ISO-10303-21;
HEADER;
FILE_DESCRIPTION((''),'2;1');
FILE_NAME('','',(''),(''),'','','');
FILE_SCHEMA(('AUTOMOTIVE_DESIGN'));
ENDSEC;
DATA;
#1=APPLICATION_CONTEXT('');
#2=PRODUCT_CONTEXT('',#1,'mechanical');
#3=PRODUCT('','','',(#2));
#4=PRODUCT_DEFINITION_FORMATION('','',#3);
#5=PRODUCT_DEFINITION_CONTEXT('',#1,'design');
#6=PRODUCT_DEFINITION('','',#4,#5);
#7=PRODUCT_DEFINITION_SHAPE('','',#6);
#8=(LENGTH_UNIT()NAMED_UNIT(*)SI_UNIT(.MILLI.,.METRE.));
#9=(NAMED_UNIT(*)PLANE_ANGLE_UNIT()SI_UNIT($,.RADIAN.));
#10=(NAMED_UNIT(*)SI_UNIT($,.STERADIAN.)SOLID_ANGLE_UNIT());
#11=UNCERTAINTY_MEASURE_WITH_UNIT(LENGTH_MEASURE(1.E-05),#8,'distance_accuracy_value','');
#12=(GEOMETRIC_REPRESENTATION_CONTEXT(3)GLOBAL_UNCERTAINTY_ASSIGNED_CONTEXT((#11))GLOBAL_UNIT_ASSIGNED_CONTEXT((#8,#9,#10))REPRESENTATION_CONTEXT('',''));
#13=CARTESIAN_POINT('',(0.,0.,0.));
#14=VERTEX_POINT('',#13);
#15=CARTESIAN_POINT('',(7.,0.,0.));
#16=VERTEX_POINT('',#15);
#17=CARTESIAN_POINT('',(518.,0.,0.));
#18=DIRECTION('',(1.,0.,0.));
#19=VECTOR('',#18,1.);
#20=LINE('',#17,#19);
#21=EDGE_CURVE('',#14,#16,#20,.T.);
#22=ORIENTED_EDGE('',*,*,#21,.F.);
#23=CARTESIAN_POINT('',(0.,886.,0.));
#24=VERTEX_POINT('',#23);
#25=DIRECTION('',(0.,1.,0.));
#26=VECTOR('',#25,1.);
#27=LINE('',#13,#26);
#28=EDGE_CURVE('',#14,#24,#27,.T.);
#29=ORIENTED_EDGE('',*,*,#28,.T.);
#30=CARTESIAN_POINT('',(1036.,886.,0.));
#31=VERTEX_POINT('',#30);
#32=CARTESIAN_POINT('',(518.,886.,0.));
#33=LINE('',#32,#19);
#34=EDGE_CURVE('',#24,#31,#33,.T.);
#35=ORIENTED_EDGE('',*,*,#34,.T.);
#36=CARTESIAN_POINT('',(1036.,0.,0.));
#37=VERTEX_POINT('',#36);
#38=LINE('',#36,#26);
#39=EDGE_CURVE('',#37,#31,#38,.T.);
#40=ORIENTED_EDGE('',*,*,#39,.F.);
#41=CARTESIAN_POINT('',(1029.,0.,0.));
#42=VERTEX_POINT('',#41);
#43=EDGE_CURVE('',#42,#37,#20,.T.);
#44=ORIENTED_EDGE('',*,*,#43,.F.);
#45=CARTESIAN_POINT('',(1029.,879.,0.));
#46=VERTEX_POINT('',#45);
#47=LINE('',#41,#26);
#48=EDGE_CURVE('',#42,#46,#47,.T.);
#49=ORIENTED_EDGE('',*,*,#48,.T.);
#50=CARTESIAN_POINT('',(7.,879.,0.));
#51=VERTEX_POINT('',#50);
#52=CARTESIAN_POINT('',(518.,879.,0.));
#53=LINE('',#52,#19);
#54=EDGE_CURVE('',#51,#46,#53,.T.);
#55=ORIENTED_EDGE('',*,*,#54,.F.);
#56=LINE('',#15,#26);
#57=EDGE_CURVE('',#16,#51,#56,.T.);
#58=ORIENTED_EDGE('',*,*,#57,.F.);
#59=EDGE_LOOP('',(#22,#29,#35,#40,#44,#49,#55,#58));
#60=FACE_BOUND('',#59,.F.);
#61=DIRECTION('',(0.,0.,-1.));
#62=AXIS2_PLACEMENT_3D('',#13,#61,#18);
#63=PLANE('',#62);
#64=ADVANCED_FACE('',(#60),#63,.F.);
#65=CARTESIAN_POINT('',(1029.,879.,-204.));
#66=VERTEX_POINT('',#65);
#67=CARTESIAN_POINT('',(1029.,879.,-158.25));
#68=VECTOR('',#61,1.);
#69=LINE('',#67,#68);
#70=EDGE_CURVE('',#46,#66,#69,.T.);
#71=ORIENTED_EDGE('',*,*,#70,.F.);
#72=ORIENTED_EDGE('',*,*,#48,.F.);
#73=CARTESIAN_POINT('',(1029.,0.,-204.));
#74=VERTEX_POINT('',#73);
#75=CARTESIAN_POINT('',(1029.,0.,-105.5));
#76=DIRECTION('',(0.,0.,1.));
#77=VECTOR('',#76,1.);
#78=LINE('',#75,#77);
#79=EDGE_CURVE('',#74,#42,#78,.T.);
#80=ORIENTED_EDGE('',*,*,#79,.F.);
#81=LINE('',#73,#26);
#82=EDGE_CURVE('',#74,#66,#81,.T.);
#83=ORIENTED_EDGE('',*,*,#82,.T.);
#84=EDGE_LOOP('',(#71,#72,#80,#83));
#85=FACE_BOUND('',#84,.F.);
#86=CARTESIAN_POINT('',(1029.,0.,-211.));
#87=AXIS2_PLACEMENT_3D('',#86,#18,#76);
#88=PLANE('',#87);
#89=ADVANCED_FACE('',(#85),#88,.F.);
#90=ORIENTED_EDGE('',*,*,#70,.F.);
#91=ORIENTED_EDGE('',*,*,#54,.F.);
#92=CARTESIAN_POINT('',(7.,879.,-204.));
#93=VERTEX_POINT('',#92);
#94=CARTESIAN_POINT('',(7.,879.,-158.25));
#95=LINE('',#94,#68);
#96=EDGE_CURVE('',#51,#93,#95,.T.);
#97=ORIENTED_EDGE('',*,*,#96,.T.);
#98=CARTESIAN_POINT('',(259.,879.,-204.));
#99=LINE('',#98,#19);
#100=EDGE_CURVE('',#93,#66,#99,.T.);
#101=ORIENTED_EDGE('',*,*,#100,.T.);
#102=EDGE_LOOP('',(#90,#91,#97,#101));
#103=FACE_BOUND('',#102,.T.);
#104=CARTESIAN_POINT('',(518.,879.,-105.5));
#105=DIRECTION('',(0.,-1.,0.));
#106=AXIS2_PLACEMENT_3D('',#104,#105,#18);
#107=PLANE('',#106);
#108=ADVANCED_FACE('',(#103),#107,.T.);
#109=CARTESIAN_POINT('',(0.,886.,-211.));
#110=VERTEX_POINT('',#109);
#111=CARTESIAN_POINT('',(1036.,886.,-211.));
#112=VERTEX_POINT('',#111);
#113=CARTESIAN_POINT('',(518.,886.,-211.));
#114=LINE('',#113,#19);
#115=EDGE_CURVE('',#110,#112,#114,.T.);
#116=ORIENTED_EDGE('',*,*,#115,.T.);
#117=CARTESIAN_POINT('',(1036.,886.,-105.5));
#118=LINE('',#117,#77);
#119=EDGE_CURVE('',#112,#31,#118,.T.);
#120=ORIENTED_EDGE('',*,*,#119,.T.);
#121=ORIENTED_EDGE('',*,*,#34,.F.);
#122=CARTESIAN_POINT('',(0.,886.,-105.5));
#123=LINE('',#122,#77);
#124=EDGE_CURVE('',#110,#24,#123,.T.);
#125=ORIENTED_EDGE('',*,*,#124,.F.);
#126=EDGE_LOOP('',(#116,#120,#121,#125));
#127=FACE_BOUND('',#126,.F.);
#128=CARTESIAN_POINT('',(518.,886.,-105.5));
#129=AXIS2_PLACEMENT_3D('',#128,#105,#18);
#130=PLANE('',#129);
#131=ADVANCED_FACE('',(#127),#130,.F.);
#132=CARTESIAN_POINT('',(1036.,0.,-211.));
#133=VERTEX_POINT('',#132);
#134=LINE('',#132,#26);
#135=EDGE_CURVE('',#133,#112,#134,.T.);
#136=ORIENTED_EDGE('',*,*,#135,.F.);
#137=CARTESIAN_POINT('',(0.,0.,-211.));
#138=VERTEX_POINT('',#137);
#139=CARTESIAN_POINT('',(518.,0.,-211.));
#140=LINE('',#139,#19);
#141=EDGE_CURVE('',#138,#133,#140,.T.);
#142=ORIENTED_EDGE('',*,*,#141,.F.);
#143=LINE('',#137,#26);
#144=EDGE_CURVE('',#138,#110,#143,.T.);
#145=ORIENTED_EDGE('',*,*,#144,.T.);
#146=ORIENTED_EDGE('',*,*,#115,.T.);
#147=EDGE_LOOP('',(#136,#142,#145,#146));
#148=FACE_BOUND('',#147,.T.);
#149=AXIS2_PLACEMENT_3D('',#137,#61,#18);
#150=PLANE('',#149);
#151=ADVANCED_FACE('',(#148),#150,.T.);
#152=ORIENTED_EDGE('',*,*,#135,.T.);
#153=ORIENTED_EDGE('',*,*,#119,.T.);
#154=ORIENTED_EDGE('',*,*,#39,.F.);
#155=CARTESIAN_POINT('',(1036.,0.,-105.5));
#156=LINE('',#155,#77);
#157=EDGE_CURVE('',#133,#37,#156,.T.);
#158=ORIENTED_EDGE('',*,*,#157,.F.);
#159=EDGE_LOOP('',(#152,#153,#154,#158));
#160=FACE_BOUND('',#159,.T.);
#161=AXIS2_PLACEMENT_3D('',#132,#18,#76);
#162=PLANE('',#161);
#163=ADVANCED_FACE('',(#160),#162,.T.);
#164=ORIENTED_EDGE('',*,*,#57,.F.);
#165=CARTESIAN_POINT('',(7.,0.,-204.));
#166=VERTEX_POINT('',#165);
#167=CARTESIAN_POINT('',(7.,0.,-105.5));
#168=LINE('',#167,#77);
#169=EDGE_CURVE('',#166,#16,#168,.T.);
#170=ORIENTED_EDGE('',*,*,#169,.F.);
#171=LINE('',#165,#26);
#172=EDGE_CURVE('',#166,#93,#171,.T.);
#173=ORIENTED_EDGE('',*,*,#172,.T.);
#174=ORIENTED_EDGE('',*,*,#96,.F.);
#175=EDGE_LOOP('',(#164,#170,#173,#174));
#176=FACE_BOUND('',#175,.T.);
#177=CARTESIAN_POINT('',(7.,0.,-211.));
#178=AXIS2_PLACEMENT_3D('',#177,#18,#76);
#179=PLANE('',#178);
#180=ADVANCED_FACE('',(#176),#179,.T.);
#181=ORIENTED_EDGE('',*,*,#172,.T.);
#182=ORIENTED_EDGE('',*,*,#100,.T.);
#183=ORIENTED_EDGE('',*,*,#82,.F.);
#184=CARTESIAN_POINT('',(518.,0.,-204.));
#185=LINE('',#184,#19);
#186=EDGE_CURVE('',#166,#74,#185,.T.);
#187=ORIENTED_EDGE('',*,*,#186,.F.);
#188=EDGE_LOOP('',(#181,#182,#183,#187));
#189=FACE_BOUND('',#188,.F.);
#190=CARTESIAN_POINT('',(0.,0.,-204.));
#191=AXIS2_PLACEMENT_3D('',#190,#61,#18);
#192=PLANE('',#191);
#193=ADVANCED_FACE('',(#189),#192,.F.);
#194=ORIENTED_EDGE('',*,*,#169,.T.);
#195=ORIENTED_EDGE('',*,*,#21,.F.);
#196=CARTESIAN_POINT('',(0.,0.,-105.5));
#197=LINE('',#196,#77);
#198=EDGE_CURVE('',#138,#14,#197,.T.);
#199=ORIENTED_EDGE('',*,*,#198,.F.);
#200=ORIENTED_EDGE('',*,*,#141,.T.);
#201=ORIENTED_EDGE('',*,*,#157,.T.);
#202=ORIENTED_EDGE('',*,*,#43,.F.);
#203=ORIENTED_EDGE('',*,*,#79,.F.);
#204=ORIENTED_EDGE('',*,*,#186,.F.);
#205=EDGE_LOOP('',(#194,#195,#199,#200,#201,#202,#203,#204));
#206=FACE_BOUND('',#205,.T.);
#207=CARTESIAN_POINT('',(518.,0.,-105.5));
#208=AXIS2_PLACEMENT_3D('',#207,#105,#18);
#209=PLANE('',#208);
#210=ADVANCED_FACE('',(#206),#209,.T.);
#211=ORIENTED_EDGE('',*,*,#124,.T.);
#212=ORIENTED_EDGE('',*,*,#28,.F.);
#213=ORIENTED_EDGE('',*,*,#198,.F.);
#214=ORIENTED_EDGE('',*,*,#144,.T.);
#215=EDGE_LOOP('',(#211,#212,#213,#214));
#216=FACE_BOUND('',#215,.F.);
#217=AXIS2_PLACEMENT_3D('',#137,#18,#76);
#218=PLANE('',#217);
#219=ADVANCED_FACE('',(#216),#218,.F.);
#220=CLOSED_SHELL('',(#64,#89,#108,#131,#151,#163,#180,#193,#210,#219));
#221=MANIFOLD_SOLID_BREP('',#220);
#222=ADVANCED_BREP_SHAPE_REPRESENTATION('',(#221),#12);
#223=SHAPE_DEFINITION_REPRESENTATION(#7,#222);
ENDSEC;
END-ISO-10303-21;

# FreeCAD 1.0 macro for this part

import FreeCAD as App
import Part
import Sketcher
from FreeCAD import Vector
Q = App.Units.Quantity


def faces_at(feature, points):
    """Names of the faces that lie closest to the given points."""
    faces = feature.Shape.Faces
    near = lambda p: min(range(len(faces)), key=lambda i: faces[i].distToShape(Part.Vertex(*p))[0])
    return sorted({f"Face{near(p) + 1}" for p in points})


def add_polygon(sketch, points):
    """Adds a closed chain of lines whose ends are joined by coincident constraints."""
    first, n = sketch.GeometryCount, len(points)
    for a, b in zip(points, points[1:] + points[:1]):
        sketch.addGeometry(Part.LineSegment(App.Vector(*a, 0), App.Vector(*b, 0)), False)
    for i in range(n):
        sketch.addConstraint(Sketcher.Constraint("Coincident", first + i, 2, first + (i + 1) % n, 1))

doc = App.newDocument("Part")
body = doc.addObject("PartDesign::Body", "Body")

# Sketch on XZ plane
sketch1 = body.newObject("Sketcher::SketchObject", "Sketch")
sketch1.AttachmentSupport = (doc.getObject("XZ_Plane"), [""])
sketch1.MapMode = "FlatFace"
add_polygon(sketch1, [(0, 0), (0, -211), (1036, -211), (1036, 0)])  # lines 0-3
sketch1.addConstraint(Sketcher.Constraint("Vertical", 0))
sketch1.addConstraint(Sketcher.Constraint("Horizontal", 1))
sketch1.addConstraint(Sketcher.Constraint("Vertical", 2))
sketch1.addConstraint(Sketcher.Constraint("Horizontal", 3))
sketch1.addConstraint(Sketcher.Constraint("Coincident", 3, 2, -1, 1))
sketch1.addConstraint(Sketcher.Constraint("DistanceX", 1, 1, 1, 2, Q("1036 mm")))
sketch1.addConstraint(Sketcher.Constraint("DistanceY", 0, 2, 0, 1, Q("211 mm")))
pad1 = body.newObject("PartDesign::Pad", "Pad")
pad1.Profile = sketch1
pad1.Length = 886
pad1.Reversed = True
doc.recompute()

thickness = body.newObject("PartDesign::Thickness", "Thickness")
thickness.Base = (pad1, faces_at(pad1, [(518, 443, 0), (518, 0, -105.5)]))
thickness.Value = 7
thickness.Reversed = True
thickness.Join = "Arc"

doc.recompute()
